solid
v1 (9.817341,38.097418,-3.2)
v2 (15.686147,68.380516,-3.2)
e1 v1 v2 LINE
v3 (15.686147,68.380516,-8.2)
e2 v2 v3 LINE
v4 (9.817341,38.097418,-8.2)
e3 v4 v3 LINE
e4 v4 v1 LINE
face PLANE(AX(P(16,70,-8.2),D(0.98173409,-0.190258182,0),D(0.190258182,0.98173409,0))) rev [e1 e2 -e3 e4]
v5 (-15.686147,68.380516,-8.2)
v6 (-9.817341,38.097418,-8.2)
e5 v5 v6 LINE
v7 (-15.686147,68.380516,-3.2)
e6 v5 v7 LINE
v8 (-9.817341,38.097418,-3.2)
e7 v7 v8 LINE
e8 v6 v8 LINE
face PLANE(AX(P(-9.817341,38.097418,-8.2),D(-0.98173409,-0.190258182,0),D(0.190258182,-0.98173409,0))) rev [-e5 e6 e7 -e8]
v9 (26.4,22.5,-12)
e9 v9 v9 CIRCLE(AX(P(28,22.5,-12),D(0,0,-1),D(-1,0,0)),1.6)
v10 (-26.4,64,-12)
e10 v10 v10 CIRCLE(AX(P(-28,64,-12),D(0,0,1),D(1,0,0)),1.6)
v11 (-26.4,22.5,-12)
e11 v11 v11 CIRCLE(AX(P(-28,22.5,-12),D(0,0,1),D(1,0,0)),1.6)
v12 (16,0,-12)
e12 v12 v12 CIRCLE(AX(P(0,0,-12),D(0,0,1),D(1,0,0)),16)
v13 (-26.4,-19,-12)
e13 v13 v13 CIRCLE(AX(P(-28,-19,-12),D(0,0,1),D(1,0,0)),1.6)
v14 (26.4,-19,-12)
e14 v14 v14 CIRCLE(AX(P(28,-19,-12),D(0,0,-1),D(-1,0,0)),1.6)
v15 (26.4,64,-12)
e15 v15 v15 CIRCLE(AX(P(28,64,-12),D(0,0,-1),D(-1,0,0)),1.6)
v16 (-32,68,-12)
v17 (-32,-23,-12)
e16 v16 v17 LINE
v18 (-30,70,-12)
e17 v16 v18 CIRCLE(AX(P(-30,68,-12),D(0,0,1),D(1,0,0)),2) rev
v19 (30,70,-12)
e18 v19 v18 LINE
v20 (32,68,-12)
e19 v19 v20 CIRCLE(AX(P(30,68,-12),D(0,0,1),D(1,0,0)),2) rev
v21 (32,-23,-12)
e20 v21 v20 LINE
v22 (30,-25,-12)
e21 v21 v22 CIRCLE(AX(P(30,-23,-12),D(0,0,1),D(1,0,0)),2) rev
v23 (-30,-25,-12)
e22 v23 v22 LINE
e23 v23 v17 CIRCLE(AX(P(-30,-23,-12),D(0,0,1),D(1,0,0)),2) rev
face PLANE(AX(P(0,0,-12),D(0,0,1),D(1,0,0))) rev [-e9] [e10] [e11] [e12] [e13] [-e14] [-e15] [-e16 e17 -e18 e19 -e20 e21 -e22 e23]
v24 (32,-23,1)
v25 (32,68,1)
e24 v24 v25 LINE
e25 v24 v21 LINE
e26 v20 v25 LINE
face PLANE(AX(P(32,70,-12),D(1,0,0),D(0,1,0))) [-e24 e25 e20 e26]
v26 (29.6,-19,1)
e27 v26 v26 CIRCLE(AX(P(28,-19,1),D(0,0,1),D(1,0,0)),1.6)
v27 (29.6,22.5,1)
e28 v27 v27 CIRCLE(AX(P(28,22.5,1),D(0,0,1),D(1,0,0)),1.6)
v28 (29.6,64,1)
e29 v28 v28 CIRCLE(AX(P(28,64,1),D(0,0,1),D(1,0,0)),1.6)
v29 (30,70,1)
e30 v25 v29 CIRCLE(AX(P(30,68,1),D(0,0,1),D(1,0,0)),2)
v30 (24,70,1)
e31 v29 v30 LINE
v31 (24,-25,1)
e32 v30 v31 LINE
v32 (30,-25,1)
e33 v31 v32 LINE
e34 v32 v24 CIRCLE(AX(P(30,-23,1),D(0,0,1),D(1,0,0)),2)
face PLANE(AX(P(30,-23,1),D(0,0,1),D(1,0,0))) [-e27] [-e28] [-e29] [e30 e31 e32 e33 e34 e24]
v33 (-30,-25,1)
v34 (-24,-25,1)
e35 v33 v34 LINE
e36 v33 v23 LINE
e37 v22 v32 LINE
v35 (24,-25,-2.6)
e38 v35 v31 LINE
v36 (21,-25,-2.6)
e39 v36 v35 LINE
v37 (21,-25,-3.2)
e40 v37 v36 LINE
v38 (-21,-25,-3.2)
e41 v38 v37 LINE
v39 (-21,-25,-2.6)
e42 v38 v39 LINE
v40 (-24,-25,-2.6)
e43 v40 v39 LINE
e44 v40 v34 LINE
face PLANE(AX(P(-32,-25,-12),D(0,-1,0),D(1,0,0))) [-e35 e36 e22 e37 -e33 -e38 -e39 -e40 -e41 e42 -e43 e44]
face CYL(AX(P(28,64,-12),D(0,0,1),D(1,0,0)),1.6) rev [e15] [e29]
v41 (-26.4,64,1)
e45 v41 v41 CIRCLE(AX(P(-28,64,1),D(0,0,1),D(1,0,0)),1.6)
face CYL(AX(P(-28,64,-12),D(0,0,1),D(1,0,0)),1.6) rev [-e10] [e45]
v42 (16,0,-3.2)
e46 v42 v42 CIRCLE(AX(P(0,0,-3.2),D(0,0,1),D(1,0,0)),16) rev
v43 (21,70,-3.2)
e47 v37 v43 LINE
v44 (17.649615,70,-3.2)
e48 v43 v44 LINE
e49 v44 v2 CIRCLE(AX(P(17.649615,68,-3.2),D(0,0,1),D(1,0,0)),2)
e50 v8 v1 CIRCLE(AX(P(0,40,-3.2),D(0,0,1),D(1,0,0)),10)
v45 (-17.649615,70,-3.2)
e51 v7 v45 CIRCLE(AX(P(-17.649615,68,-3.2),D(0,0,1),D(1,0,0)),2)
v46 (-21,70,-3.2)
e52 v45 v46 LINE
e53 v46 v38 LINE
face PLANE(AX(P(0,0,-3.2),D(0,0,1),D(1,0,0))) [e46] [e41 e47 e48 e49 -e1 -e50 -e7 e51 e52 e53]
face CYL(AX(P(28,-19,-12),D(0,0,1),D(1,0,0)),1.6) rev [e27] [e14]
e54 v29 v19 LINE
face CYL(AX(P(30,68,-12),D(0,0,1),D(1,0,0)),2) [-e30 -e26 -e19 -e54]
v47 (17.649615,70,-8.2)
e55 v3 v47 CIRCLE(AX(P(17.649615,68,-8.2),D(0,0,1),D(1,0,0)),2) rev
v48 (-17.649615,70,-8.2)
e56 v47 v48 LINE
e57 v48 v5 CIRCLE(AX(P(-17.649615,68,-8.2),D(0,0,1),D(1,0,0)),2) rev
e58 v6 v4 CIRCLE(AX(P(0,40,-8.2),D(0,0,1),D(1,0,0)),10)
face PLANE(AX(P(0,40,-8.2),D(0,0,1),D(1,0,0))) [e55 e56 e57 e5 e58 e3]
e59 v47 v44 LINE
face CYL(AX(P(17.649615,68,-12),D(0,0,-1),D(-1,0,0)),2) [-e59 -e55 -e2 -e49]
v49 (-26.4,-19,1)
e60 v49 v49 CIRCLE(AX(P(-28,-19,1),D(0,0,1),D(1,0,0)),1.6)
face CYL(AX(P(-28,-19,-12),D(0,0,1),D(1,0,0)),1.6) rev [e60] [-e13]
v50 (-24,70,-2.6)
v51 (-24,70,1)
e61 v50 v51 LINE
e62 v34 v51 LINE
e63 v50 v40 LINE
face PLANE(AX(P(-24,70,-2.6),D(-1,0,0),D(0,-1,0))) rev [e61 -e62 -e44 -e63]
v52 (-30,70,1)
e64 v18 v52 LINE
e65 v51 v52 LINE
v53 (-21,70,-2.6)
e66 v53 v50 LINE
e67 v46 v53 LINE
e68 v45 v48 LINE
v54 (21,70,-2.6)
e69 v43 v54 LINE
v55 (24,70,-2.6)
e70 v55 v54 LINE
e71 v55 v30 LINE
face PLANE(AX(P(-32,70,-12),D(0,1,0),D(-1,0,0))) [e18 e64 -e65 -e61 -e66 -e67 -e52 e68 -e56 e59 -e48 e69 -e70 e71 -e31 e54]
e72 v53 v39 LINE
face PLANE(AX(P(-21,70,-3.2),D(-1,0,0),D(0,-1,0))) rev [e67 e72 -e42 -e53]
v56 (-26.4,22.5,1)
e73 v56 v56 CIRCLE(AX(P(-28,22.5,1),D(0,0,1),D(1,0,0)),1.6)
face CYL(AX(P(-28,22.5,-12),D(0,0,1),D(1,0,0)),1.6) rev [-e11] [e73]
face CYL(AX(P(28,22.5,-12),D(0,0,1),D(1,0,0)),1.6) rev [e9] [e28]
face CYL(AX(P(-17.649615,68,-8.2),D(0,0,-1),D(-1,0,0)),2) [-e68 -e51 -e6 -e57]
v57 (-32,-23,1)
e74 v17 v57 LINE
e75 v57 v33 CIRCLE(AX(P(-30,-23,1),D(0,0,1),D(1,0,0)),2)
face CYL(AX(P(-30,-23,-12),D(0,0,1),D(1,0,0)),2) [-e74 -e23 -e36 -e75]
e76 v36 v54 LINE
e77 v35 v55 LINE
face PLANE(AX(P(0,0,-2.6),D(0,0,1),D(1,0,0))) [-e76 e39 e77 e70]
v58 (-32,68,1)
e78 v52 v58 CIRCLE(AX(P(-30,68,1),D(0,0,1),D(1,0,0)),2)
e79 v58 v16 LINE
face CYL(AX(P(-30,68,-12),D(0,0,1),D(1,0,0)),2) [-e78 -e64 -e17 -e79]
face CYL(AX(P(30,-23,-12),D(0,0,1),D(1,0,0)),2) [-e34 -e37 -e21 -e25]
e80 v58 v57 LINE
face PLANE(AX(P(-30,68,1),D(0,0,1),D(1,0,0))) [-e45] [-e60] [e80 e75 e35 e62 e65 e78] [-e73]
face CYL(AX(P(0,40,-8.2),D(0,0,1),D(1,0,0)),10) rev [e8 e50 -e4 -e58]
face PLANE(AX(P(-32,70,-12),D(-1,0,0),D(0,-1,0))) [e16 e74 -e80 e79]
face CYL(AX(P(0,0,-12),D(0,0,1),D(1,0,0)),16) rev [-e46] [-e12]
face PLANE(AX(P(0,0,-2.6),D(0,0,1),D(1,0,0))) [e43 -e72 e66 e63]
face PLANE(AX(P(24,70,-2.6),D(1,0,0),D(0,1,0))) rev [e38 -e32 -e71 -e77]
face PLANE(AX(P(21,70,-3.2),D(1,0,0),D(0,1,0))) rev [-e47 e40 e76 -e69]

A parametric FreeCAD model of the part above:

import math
import FreeCAD as App
import Part
import Sketcher

V = App.Vector


def edges_at(feature, points):
    """Names of the edges that pass closest to the given points."""
    edges = feature.Shape.Edges
    near = lambda p: min(range(len(edges)), key=lambda i: edges[i].distToShape(Part.Vertex(*p))[0])
    return sorted({f"Edge{near(p) + 1}" for p in points})

doc = App.newDocument("Part")
body = doc.addObject("PartDesign::Body", "Body")

# Sketch on XY plane
sketch1 = doc.addObject("Sketcher::SketchObject", "Sketch")
body.addObject(sketch1)
sketch1.AttachmentSupport = (doc.XY_Plane, [""])
sketch1.MapMode = "FlatFace"
sketch1.addGeometry(Part.LineSegment(V(-32, 70, 0), V(-32, -25, 0)), False)
sketch1.addGeometry(Part.LineSegment(V(-32, -25, 0), V(32, -25, 0)), False)
sketch1.addGeometry(Part.LineSegment(V(32, -25, 0), V(32, 70, 0)), False)
sketch1.addGeometry(Part.LineSegment(V(32, 70, 0), V(-32, 70, 0)), False)
sketch1.addGeometry(Part.Circle(V(0, 0, 0), V(0, 0, 1), 16), False)
sketch1.addConstraint(Sketcher.Constraint("Coincident", 0, 2, 1, 1))
sketch1.addConstraint(Sketcher.Constraint("Coincident", 1, 2, 2, 1))
sketch1.addConstraint(Sketcher.Constraint("Coincident", 2, 2, 3, 1))
sketch1.addConstraint(Sketcher.Constraint("Coincident", 3, 2, 0, 1))
sketch1.addConstraint(Sketcher.Constraint("Vertical", 0))
sketch1.addConstraint(Sketcher.Constraint("Horizontal", 1))
sketch1.addConstraint(Sketcher.Constraint("Vertical", 2))
sketch1.addConstraint(Sketcher.Constraint("Horizontal", 3))
sketch1.addConstraint(Sketcher.Constraint("Coincident", 4, 3, -1, 1))
sketch1.addConstraint(Sketcher.Constraint("Diameter", 4, 32.0))
sketch1.addConstraint(Sketcher.Constraint("DistanceX", 1, 1, 1, 2, 64.0))
sketch1.addConstraint(Sketcher.Constraint("DistanceY", 0, 2, 0, 1, 95.0))
sketch1.addConstraint(Sketcher.Constraint("DistanceX", 0, 2, -1, 1, 32.0))
sketch1.addConstraint(Sketcher.Constraint("DistanceY", 0, 2, -1, 1, 25.0))
pad1 = doc.addObject("PartDesign::Pad", "Pad")
body.addObject(pad1)
pad1.Profile = sketch1
pad1.Length = 12
pad1.Reversed = True

# Sketch on XY plane
sketch2 = doc.addObject("Sketcher::SketchObject", "Sketch001")
body.addObject(sketch2)
sketch2.AttachmentSupport = (doc.XY_Plane, [""])
sketch2.MapMode = "FlatFace"
sketch2.addGeometry(Part.LineSegment(V(-24, 70, 0), V(-24, -25, 0)), False)
sketch2.addGeometry(Part.LineSegment(V(-24, -25, 0), V(24, -25, 0)), False)
sketch2.addGeometry(Part.LineSegment(V(24, -25, 0), V(24, 70, 0)), False)
sketch2.addGeometry(Part.LineSegment(V(24, 70, 0), V(-24, 70, 0)), False)
sketch2.addConstraint(Sketcher.Constraint("Coincident", 0, 2, 1, 1))
sketch2.addConstraint(Sketcher.Constraint("Coincident", 1, 2, 2, 1))
sketch2.addConstraint(Sketcher.Constraint("Coincident", 2, 2, 3, 1))
sketch2.addConstraint(Sketcher.Constraint("Coincident", 3, 2, 0, 1))
sketch2.addConstraint(Sketcher.Constraint("Vertical", 0))
sketch2.addConstraint(Sketcher.Constraint("Horizontal", 1))
sketch2.addConstraint(Sketcher.Constraint("Vertical", 2))
sketch2.addConstraint(Sketcher.Constraint("Horizontal", 3))
sketch2.addConstraint(Sketcher.Constraint("DistanceX", 1, 1, 1, 2, 48.0))
sketch2.addConstraint(Sketcher.Constraint("DistanceY", 0, 2, 0, 1, 95.0))
sketch2.addConstraint(Sketcher.Constraint("DistanceX", 0, 2, -1, 1, 24.0))
sketch2.addConstraint(Sketcher.Constraint("DistanceY", 0, 2, -1, 1, 25.0))
pocket1 = doc.addObject("PartDesign::Pocket", "Pocket")
body.addObject(pocket1)
pocket1.Profile = sketch2
pocket1.Length = 2.6

# Sketch on XY plane
sketch3 = doc.addObject("Sketcher::SketchObject", "Sketch002")
body.addObject(sketch3)
sketch3.AttachmentSupport = (doc.XY_Plane, [""])
sketch3.MapMode = "FlatFace"
sketch3.AttachmentOffset = App.Placement(V(0, 0, -2.6), App.Rotation())
sketch3.addGeometry(Part.LineSegment(V(-21, 70, 0), V(-21, -25, 0)), False)
sketch3.addGeometry(Part.LineSegment(V(-21, -25, 0), V(21, -25, 0)), False)
sketch3.addGeometry(Part.LineSegment(V(21, -25, 0), V(21, 70, 0)), False)
sketch3.addGeometry(Part.LineSegment(V(21, 70, 0), V(-21, 70, 0)), False)
sketch3.addConstraint(Sketcher.Constraint("Coincident", 0, 2, 1, 1))
sketch3.addConstraint(Sketcher.Constraint("Coincident", 1, 2, 2, 1))
sketch3.addConstraint(Sketcher.Constraint("Coincident", 2, 2, 3, 1))
sketch3.addConstraint(Sketcher.Constraint("Coincident", 3, 2, 0, 1))
sketch3.addConstraint(Sketcher.Constraint("Vertical", 0))
sketch3.addConstraint(Sketcher.Constraint("Horizontal", 1))
sketch3.addConstraint(Sketcher.Constraint("Vertical", 2))
sketch3.addConstraint(Sketcher.Constraint("Horizontal", 3))
sketch3.addConstraint(Sketcher.Constraint("DistanceX", 1, 1, 1, 2, 42.0))
sketch3.addConstraint(Sketcher.Constraint("DistanceY", 0, 2, 0, 1, 95.0))
sketch3.addConstraint(Sketcher.Constraint("DistanceX", 0, 2, -1, 1, 21.0))
sketch3.addConstraint(Sketcher.Constraint("DistanceY", 0, 2, -1, 1, 25.0))
pocket2 = doc.addObject("PartDesign::Pocket", "Pocket001")
body.addObject(pocket2)
pocket2.Profile = sketch3
pocket2.Length = 0.6

# Sketch on XY plane
sketch4 = doc.addObject("Sketcher::SketchObject", "Sketch003")
body.addObject(sketch4)
sketch4.AttachmentSupport = (doc.XY_Plane, [""])
sketch4.MapMode = "FlatFace"
sketch4.addGeometry(Part.Circle(V(-28, -19, 0), V(0, 0, 1), 1.6), False)
sketch4.addGeometry(Part.Circle(V(-28, 22.5, 0), V(0, 0, 1), 1.6), False)
sketch4.addGeometry(Part.Circle(V(-28, 64, 0), V(0, 0, 1), 1.6), False)
sketch4.addConstraint(Sketcher.Constraint("Equal", 0, 1))
sketch4.addConstraint(Sketcher.Constraint("Equal", 1, 2))
sketch4.addConstraint(Sketcher.Constraint("Vertical", 0, 3, 1, 3))
sketch4.addConstraint(Sketcher.Constraint("Vertical", 1, 3, 2, 3))
sketch4.addConstraint(Sketcher.Constraint("Diameter", 0, 3.2))
sketch4.addConstraint(Sketcher.Constraint("DistanceX", 0, 3, -1, 1, 28.0))
sketch4.addConstraint(Sketcher.Constraint("DistanceY", 0, 3, -1, 1, 19.0))
sketch4.addConstraint(Sketcher.Constraint("DistanceY", -1, 1, 2, 3, 64.0))
sketch4.addConstraint(Sketcher.Constraint("DistanceY", -1, 1, 1, 3, 22.5))
pocket3 = doc.addObject("PartDesign::Pocket", "Pocket002")
body.addObject(pocket3)
pocket3.Profile = sketch4
pocket3.Type = "ThroughAll"
doc.recompute()

mirrored = doc.addObject("PartDesign::Mirrored", "Mirrored")
body.addObject(mirrored)
mirrored.Originals = [pocket3]
mirrored.MirrorPlane = (doc.YZ_Plane, [""])
body.Tip = mirrored

# Sketch on XY plane
sketch5 = doc.addObject("Sketcher::SketchObject", "Sketch004")
body.addObject(sketch5)
sketch5.AttachmentSupport = (doc.XY_Plane, [""])
sketch5.MapMode = "FlatFace"
sketch5.AttachmentOffset = App.Placement(V(0, 0, -3.2), App.Rotation())
sketch5.addGeometry(Part.LineSegment(V(10, 38, 0), V(16, 70, 0)), False)
sketch5.addGeometry(Part.LineSegment(V(16, 70, 0), V(-16, 70, 0)), False)
sketch5.addGeometry(Part.LineSegment(V(-16, 70, 0), V(-10, 38, 0)), False)
sketch5.addGeometry(Part.ArcOfCircle(Part.Circle(V(0, 40, 0), V(0, 0, 1), 10), math.radians(-169), math.radians(-11)), False)
sketch5.addConstraint(Sketcher.Constraint("Coincident", 0, 2, 1, 1))
sketch5.addConstraint(Sketcher.Constraint("Coincident", 1, 2, 2, 1))
sketch5.addConstraint(Sketcher.Constraint("Tangent", 2, 2, 3, 1))
sketch5.addConstraint(Sketcher.Constraint("Tangent", 3, 2, 0, 1))
sketch5.addConstraint(Sketcher.Constraint("Horizontal", 1))
sketch5.addConstraint(Sketcher.Constraint("Symmetric", 2, 2, 3, 2, -2))
sketch5.addConstraint(Sketcher.Constraint("Radius", 3, 10.0))
sketch5.addConstraint(Sketcher.Constraint("DistanceX", 1, 2, 1, 1, 32.0))
sketch5.addConstraint(Sketcher.Constraint("DistanceY", -1, 1, 3, 3, 40.0))
sketch5.addConstraint(Sketcher.Constraint("DistanceY", -1, 1, 0, 2, 70.0))
pocket4 = doc.addObject("PartDesign::Pocket", "Pocket003")
body.addObject(pocket4)
pocket4.Profile = sketch5
pocket4.Length = 5
doc.recompute()

fillet = doc.addObject("PartDesign::Fillet", "Fillet")
body.addObject(fillet)
fillet.Base = (pocket4, edges_at(pocket4, [
    (-32, 70, -6),
    (32, 70, -6),
    (32, -25, -6),
    (-32, -25, -6),
    (-16, 70, -5.7),
    (16, 70, -5.7),
]))
fillet.Radius = 2

# Sketch on XY plane
sketch6 = doc.addObject("Sketcher::SketchObject", "Sketch005")
body.addObject(sketch6)
sketch6.AttachmentSupport = (doc.XY_Plane, [""])
sketch6.MapMode = "FlatFace"
sketch6.AttachmentOffset = App.Placement(V(0, 0, 1), App.Rotation())
sketch6.addGeometry(Part.LineSegment(V(-32, 68, 0), V(-32, -23, 0)), False)
sketch6.addGeometry(Part.ArcOfCircle(Part.Circle(V(-30, -23, 0), V(0, 0, 1), 2), math.radians(-180), math.radians(-90)), False)
sketch6.addGeometry(Part.LineSegment(V(-30, -25, 0), V(-24, -25, 0)), False)
sketch6.addGeometry(Part.LineSegment(V(-24, -25, 0), V(-24, 70, 0)), False)
sketch6.addGeometry(Part.LineSegment(V(-24, 70, 0), V(-30, 70, 0)), False)
sketch6.addGeometry(Part.ArcOfCircle(Part.Circle(V(-30, 68, 0), V(0, 0, 1), 2), math.radians(90), math.radians(180)), False)
sketch6.addGeometry(Part.Circle(V(-28, -19, 0), V(0, 0, 1), 1.6), False)
sketch6.addGeometry(Part.Circle(V(-28, 22.5, 0), V(0, 0, 1), 1.6), False)
sketch6.addGeometry(Part.Circle(V(-28, 64, 0), V(0, 0, 1), 1.6), False)
sketch6.addGeometry(Part.LineSegment(V(32, -23, 0), V(32, 68, 0)), False)
sketch6.addGeometry(Part.ArcOfCircle(Part.Circle(V(30, 68, 0), V(0, 0, 1), 2), math.radians(0), math.radians(90)), False)
sketch6.addGeometry(Part.LineSegment(V(30, 70, 0), V(24, 70, 0)), False)
sketch6.addGeometry(Part.LineSegment(V(24, 70, 0), V(24, -25, 0)), False)
sketch6.addGeometry(Part.LineSegment(V(24, -25, 0), V(30, -25, 0)), False)
sketch6.addGeometry(Part.ArcOfCircle(Part.Circle(V(30, -23, 0), V(0, 0, 1), 2), math.radians(-90), math.radians(0)), False)
sketch6.addGeometry(Part.Circle(V(28, -19, 0), V(0, 0, 1), 1.6), False)
sketch6.addGeometry(Part.Circle(V(28, 22.5, 0), V(0, 0, 1), 1.6), False)
sketch6.addGeometry(Part.Circle(V(28, 64, 0), V(0, 0, 1), 1.6), False)
sketch6.addConstraint(Sketcher.Constraint("Tangent", 0, 2, 1, 1))
sketch6.addConstraint(Sketcher.Constraint("Tangent", 1, 2, 2, 1))
sketch6.addConstraint(Sketcher.Constraint("Coincident", 2, 2, 3, 1))
sketch6.addConstraint(Sketcher.Constraint("Coincident", 3, 2, 4, 1))
sketch6.addConstraint(Sketcher.Constraint("Tangent", 4, 2, 5, 1))
sketch6.addConstraint(Sketcher.Constraint("Tangent", 5, 2, 0, 1))
sketch6.addConstraint(Sketcher.Constraint("Tangent", 9, 2, 10, 1))
sketch6.addConstraint(Sketcher.Constraint("Tangent", 10, 2, 11, 1))
sketch6.addConstraint(Sketcher.Constraint("Coincident", 11, 2, 12, 1))
sketch6.addConstraint(Sketcher.Constraint("Coincident", 12, 2, 13, 1))
sketch6.addConstraint(Sketcher.Constraint("Tangent", 13, 2, 14, 1))
sketch6.addConstraint(Sketcher.Constraint("Tangent", 14, 2, 9, 1))
sketch6.addConstraint(Sketcher.Constraint("Vertical", 0))
sketch6.addConstraint(Sketcher.Constraint("Horizontal", 2))
sketch6.addConstraint(Sketcher.Constraint("Vertical", 3))
sketch6.addConstraint(Sketcher.Constraint("Horizontal", 4))
sketch6.addConstraint(Sketcher.Constraint("Vertical", 9))
sketch6.addConstraint(Sketcher.Constraint("Horizontal", 11))
sketch6.addConstraint(Sketcher.Constraint("Vertical", 12))
sketch6.addConstraint(Sketcher.Constraint("Horizontal", 13))
sketch6.addConstraint(Sketcher.Constraint("Equal", 1, 5))
sketch6.addConstraint(Sketcher.Constraint("Equal", 6, 7))
sketch6.addConstraint(Sketcher.Constraint("Equal", 7, 8))
sketch6.addConstraint(Sketcher.Constraint("Equal", 5, 10))
sketch6.addConstraint(Sketcher.Constraint("Equal", 10, 14))
sketch6.addConstraint(Sketcher.Constraint("Equal", 8, 15))
sketch6.addConstraint(Sketcher.Constraint("Equal", 15, 16))
sketch6.addConstraint(Sketcher.Constraint("Equal", 16, 17))
sketch6.addConstraint(Sketcher.Constraint("Symmetric", 5, 3, 10, 3, -2))
sketch6.addConstraint(Sketcher.Constraint("Symmetric", 6, 3, 15, 3, -2))
sketch6.addConstraint(Sketcher.Constraint("Symmetric", 7, 3, 16, 3, -2))
sketch6.addConstraint(Sketcher.Constraint("Symmetric", 8, 3, 17, 3, -2))
sketch6.addConstraint(Sketcher.Constraint("Symmetric", 2, 2, 12, 2, -2))
sketch6.addConstraint(Sketcher.Constraint("Vertical", 6, 3, 7, 3))
sketch6.addConstraint(Sketcher.Constraint("Vertical", 7, 3, 8, 3))
sketch6.addConstraint(Sketcher.Constraint("Radius", 1, 2.0))
sketch6.addConstraint(Sketcher.Constraint("Diameter", 6, 3.2))
sketch6.addConstraint(Sketcher.Constraint("DistanceX", 2, 1, 2, 2, 6.0))
sketch6.addConstraint(Sketcher.Constraint("DistanceY", 0, 2, 0, 1, 91.0))
sketch6.addConstraint(Sketcher.Constraint("DistanceX", 1, 3, -1, 1, 30.0))
sketch6.addConstraint(Sketcher.Constraint("DistanceY", 1, 3, -1, 1, 23.0))
sketch6.addConstraint(Sketcher.Constraint("DistanceX", 6, 3, -1, 1, 28.0))
sketch6.addConstraint(Sketcher.Constraint("DistanceY", 6, 3, -1, 1, 19.0))
sketch6.addConstraint(Sketcher.Constraint("DistanceY", -1, 1, 8, 3, 64.0))
sketch6.addConstraint(Sketcher.Constraint("DistanceY", -1, 1, 7, 3, 22.5))
pad2 = doc.addObject("PartDesign::Pad", "Pad001")
body.addObject(pad2)
pad2.Profile = sketch6
pad2.Length = 1
pad2.Reversed = True

doc.recompute()
